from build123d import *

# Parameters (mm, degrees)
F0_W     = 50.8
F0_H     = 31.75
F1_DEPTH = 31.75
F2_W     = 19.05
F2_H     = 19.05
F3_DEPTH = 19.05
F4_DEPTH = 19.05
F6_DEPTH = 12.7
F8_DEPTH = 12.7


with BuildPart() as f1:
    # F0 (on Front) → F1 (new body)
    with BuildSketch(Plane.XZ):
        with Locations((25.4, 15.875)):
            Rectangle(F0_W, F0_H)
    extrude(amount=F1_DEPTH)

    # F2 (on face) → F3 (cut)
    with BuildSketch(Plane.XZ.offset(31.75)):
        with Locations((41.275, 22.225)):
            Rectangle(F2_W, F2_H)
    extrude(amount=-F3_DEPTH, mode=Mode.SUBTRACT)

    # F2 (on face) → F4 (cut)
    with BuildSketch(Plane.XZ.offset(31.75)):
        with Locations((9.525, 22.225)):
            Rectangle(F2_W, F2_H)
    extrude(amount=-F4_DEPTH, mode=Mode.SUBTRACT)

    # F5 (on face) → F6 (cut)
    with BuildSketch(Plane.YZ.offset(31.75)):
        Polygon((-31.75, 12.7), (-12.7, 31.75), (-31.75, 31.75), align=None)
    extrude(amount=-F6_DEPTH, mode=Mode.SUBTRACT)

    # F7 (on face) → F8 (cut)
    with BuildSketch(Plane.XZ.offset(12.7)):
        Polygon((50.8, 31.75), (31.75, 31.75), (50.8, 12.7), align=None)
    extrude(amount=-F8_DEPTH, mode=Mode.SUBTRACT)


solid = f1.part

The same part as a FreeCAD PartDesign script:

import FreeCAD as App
import Part
import Sketcher

V = App.Vector
Q = App.Units.Quantity


def add_polygon(sketch, points):
    """Adds a closed chain of lines whose ends are joined by coincident constraints."""
    first, n = sketch.GeometryCount, len(points)
    for a, b in zip(points, points[1:] + points[:1]):
        sketch.addGeometry(Part.LineSegment(App.Vector(*a, 0), App.Vector(*b, 0)), False)
    for i in range(n):
        sketch.addConstraint(Sketcher.Constraint("Coincident", first + i, 2, first + (i + 1) % n, 1))

doc = App.newDocument("Part")
params = doc.addObject("Spreadsheet::Sheet", "Params")
for row, (alias, value) in enumerate([
    ("sketch1_width", "2 in"),
    ("sketch1_height", "1.25 in"),
    ("pad1_length", "1.25 in"),
    ("sketch2_width", "0.75 in"),
    ("pocket1_length", "0.75 in"),
    ("sketch3_width", "0.75 in"),
    ("pocket2_length", "0.75 in"),
    ("sketch4_width", "0.75 in"),
    ("pocket3_length", "0.5 in"),
    ("sketch5_width", "0.75 in"),
    ("pocket4_length", "0.5 in"),
], start=1):
    params.set(f"A{row}", alias)
    params.set(f"B{row}", "=" + value)
    params.setAlias(f"B{row}", alias)

body = doc.addObject("PartDesign::Body", "Body")

# Sketch on XZ plane
sketch1 = doc.addObject("Sketcher::SketchObject", "Sketch")
body.addObject(sketch1)
sketch1.AttachmentSupport = (doc.XZ_Plane, [""])
sketch1.MapMode = "FlatFace"
add_polygon(sketch1, [(0, 32), (0, 0), (51, 0), (51, 32)])  # lines 0-3
sketch1.addConstraint(Sketcher.Constraint("Vertical", 0))
sketch1.addConstraint(Sketcher.Constraint("Horizontal", 1))
sketch1.addConstraint(Sketcher.Constraint("Vertical", 2))
sketch1.addConstraint(Sketcher.Constraint("Horizontal", 3))
sketch1.addConstraint(Sketcher.Constraint("Coincident", 0, 2, -1, 1))
sketch1.addConstraint(Sketcher.Constraint("DistanceX", 1, 1, 1, 2, Q("2 in")))
sketch1.addConstraint(Sketcher.Constraint("DistanceY", 0, 2, 0, 1, Q("1.25 in")))
sketch1.setExpression("Constraints[9]", "Params.sketch1_width")
sketch1.setExpression("Constraints[10]", "Params.sketch1_height")
pad1 = doc.addObject("PartDesign::Pad", "Pad")
body.addObject(pad1)
pad1.Profile = sketch1
pad1.setExpression("Length", "Params.pad1_length")

# Sketch on XZ plane
sketch2 = doc.addObject("Sketcher::SketchObject", "Sketch001")
body.addObject(sketch2)
sketch2.AttachmentSupport = (doc.XZ_Plane, [""])
sketch2.MapMode = "FlatFace"
sketch2.AttachmentOffset = App.Placement(V(0, 0, 1.25 * 25.4), App.Rotation())
add_polygon(sketch2, [(32, 32), (32, 13), (51, 13), (51, 32)])  # lines 0-3
sketch2.addConstraint(Sketcher.Constraint("Vertical", 0))
sketch2.addConstraint(Sketcher.Constraint("Horizontal", 1))
sketch2.addConstraint(Sketcher.Constraint("Vertical", 2))
sketch2.addConstraint(Sketcher.Constraint("Horizontal", 3))
sketch2.addConstraint(Sketcher.Constraint("Equal", 3, 0))
sketch2.addConstraint(Sketcher.Constraint("DistanceX", -1, 1, 1, 2, Q("2 in")))
sketch2.addConstraint(Sketcher.Constraint("DistanceX", 1, 1, 1, 2, Q("0.75 in")))
sketch2.addConstraint(Sketcher.Constraint("DistanceY", -1, 1, 0, 2, Q("0.5 in")))
sketch2.setExpression("Constraints[10]", "Params.sketch2_width")
pocket1 = doc.addObject("PartDesign::Pocket", "Pocket")
body.addObject(pocket1)
pocket1.Profile = sketch2
pocket1.setExpression("Length", "Params.pocket1_length")

# Sketch on XZ plane
sketch3 = doc.addObject("Sketcher::SketchObject", "Sketch002")
body.addObject(sketch3)
sketch3.AttachmentSupport = (doc.XZ_Plane, [""])
sketch3.MapMode = "FlatFace"
sketch3.AttachmentOffset = App.Placement(V(0, 0, 1.25 * 25.4), App.Rotation())
add_polygon(sketch3, [(0, 32), (0, 13), (19, 13), (19, 32)])  # lines 0-3
sketch3.addConstraint(Sketcher.Constraint("Vertical", 0))
sketch3.addConstraint(Sketcher.Constraint("Horizontal", 1))
sketch3.addConstraint(Sketcher.Constraint("Vertical", 2))
sketch3.addConstraint(Sketcher.Constraint("Horizontal", 3))
sketch3.addConstraint(Sketcher.Constraint("PointOnObject", 0, 2, -2))
sketch3.addConstraint(Sketcher.Constraint("Equal", 3, 0))
sketch3.addConstraint(Sketcher.Constraint("DistanceX", 1, 1, 1, 2, Q("0.75 in")))
sketch3.addConstraint(Sketcher.Constraint("DistanceY", -1, 1, 0, 2, Q("0.5 in")))
sketch3.setExpression("Constraints[10]", "Params.sketch3_width")
pocket2 = doc.addObject("PartDesign::Pocket", "Pocket001")
body.addObject(pocket2)
pocket2.Profile = sketch3
pocket2.setExpression("Length", "Params.pocket2_length")

# Sketch on YZ plane
sketch4 = doc.addObject("Sketcher::SketchObject", "Sketch003")
body.addObject(sketch4)
sketch4.AttachmentSupport = (doc.YZ_Plane, [""])
sketch4.MapMode = "FlatFace"
sketch4.AttachmentOffset = App.Placement(V(0, 0, 1.25 * 25.4), App.Rotation())
add_polygon(sketch4, [(-32, 13), (-13, 32), (-32, 32)])  # lines 0-2
sketch4.addConstraint(Sketcher.Constraint("Horizontal", 1))
sketch4.addConstraint(Sketcher.Constraint("Vertical", 2))
sketch4.addConstraint(Sketcher.Constraint("Equal", 1, 2))
sketch4.addConstraint(Sketcher.Constraint("DistanceX", 1, 2, 1, 1, Q("0.75 in")))
sketch4.addConstraint(Sketcher.Constraint("DistanceX", 0, 2, -1, 1, Q("0.5 in")))
sketch4.addConstraint(Sketcher.Constraint("DistanceY", -1, 1, 2, 2, Q("0.5 in")))
sketch4.setExpression("Constraints[6]", "Params.sketch4_width")
pocket3 = doc.addObject("PartDesign::Pocket", "Pocket002")
body.addObject(pocket3)
pocket3.Profile = sketch4
pocket3.setExpression("Length", "Params.pocket3_length")

# Sketch on XZ plane
sketch5 = doc.addObject("Sketcher::SketchObject", "Sketch004")
body.addObject(sketch5)
sketch5.AttachmentSupport = (doc.XZ_Plane, [""])
sketch5.MapMode = "FlatFace"
sketch5.AttachmentOffset = App.Placement(V(0, 0, 0.5 * 25.4), App.Rotation())
add_polygon(sketch5, [(51, 32), (32, 32), (51, 13)])  # lines 0-2
sketch5.addConstraint(Sketcher.Constraint("Horizontal", 0))
sketch5.addConstraint(Sketcher.Constraint("Vertical", 2))
sketch5.addConstraint(Sketcher.Constraint("Equal", 0, 2))
sketch5.addConstraint(Sketcher.Constraint("DistanceX", -1, 1, 1, 2, Q("2 in")))
sketch5.addConstraint(Sketcher.Constraint("DistanceX", 0, 2, 0, 1, Q("0.75 in")))
sketch5.addConstraint(Sketcher.Constraint("DistanceY", -1, 1, 1, 2, Q("0.5 in")))
sketch5.setExpression("Constraints[7]", "Params.sketch5_width")
pocket4 = doc.addObject("PartDesign::Pocket", "Pocket003")
body.addObject(pocket4)
pocket4.Profile = sketch5
pocket4.setExpression("Length", "Params.pocket4_length")

doc.recompute()
